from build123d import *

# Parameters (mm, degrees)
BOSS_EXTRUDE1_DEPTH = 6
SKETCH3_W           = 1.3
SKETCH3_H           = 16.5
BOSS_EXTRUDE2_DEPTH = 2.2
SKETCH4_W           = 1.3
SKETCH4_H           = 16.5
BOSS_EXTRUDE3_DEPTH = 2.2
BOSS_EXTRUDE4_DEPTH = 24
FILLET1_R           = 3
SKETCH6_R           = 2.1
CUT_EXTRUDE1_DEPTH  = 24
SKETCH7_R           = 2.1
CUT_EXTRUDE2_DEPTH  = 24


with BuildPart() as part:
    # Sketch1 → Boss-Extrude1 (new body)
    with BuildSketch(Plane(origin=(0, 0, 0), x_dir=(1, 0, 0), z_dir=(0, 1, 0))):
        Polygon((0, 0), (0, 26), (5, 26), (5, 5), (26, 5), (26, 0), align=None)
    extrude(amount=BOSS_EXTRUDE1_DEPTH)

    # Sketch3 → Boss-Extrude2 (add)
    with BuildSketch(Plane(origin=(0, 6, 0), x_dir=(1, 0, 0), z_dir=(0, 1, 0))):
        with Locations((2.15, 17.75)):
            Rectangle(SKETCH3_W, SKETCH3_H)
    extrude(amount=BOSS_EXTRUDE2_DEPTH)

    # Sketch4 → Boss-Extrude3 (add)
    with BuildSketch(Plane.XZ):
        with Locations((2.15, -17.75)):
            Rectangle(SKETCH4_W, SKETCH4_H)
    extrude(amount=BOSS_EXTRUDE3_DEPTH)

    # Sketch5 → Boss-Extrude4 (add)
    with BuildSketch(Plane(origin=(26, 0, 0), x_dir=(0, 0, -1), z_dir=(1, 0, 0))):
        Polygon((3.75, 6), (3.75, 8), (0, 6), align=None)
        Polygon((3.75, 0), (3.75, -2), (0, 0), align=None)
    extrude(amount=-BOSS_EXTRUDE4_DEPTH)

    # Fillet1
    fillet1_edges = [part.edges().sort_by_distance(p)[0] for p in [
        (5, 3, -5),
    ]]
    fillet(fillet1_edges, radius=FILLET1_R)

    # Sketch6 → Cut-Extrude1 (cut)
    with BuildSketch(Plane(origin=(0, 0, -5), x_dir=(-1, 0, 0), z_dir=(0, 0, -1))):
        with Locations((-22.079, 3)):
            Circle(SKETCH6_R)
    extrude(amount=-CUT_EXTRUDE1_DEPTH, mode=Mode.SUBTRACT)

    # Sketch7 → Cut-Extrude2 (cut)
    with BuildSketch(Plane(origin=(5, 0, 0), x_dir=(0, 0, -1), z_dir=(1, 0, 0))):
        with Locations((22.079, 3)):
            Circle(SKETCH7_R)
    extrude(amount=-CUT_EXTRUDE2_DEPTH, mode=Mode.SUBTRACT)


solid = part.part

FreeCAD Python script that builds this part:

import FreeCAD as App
import Part
import Sketcher

V = App.Vector
Q = App.Units.Quantity


def edges_at(feature, points):
    """Names of the edges that pass closest to the given points."""
    edges = feature.Shape.Edges
    near = lambda p: min(range(len(edges)), key=lambda i: edges[i].distToShape(Part.Vertex(*p))[0])
    return sorted({f"Edge{near(p) + 1}" for p in points})


def add_polygon(sketch, points):
    """Adds a closed chain of lines whose ends are joined by coincident constraints."""
    first, n = sketch.GeometryCount, len(points)
    for a, b in zip(points, points[1:] + points[:1]):
        sketch.addGeometry(Part.LineSegment(App.Vector(*a, 0), App.Vector(*b, 0)), False)
    for i in range(n):
        sketch.addConstraint(Sketcher.Constraint("Coincident", first + i, 2, first + (i + 1) % n, 1))

doc = App.newDocument("Part")
body = doc.addObject("PartDesign::Body", "Body")

# Sketch on XZ plane
sketch1 = body.newObject("Sketcher::SketchObject", "Sketch")
sketch1.AttachmentSupport = (doc.getObject("XZ_Plane"), [""])
sketch1.MapMode = "FlatFace"
add_polygon(sketch1, [(0, -26), (0, 0), (26, 0), (26, -5), (5, -5), (5, -26)])  # lines 0-5
sketch1.addConstraint(Sketcher.Constraint("Vertical", 0))
sketch1.addConstraint(Sketcher.Constraint("Horizontal", 1))
sketch1.addConstraint(Sketcher.Constraint("Vertical", 2))
sketch1.addConstraint(Sketcher.Constraint("Horizontal", 3))
sketch1.addConstraint(Sketcher.Constraint("Vertical", 4))
sketch1.addConstraint(Sketcher.Constraint("Horizontal", 5))
sketch1.addConstraint(Sketcher.Constraint("Coincident", 0, 2, -1, 1))
sketch1.addConstraint(Sketcher.Constraint("Equal", 1, 0))
sketch1.addConstraint(Sketcher.Constraint("Equal", 5, 2))
sketch1.addConstraint(Sketcher.Constraint("DistanceX", 1, 1, 1, 2, Q("26 mm")))
sketch1.addConstraint(Sketcher.Constraint("DistanceX", 3, 2, 3, 1, Q("21 mm")))
pad1 = body.newObject("PartDesign::Pad", "Pad")
pad1.Profile = sketch1
pad1.Length = 6
pad1.Reversed = True

# Sketch on XZ plane
sketch2 = body.newObject("Sketcher::SketchObject", "Sketch001")
sketch2.AttachmentSupport = (doc.getObject("XZ_Plane"), [""])
sketch2.MapMode = "FlatFace"
sketch2.AttachmentOffset = App.Placement(V(0, 0, -6), App.Rotation())
add_polygon(sketch2, [(1.5, -26), (1.5, -9.5), (2.8, -9.5), (2.8, -26)])  # lines 0-3
sketch2.addConstraint(Sketcher.Constraint("Vertical", 0))
sketch2.addConstraint(Sketcher.Constraint("Horizontal", 1))
sketch2.addConstraint(Sketcher.Constraint("Vertical", 2))
sketch2.addConstraint(Sketcher.Constraint("Horizontal", 3))
sketch2.addConstraint(Sketcher.Constraint("DistanceX", 1, 1, 1, 2, Q("1.3 mm")))
sketch2.addConstraint(Sketcher.Constraint("DistanceY", 0, 1, 0, 2, Q("16.5 mm")))
sketch2.addConstraint(Sketcher.Constraint("DistanceY", 2, 2, -1, 1, Q("26 mm")))
sketch2.addConstraint(Sketcher.Constraint("DistanceX", -1, 1, 0, 2, Q("1.5 mm")))
pad2 = body.newObject("PartDesign::Pad", "Pad001")
pad2.Profile = sketch2
pad2.Length = 2.2
pad2.Reversed = True

# Sketch on XZ plane
sketch3 = body.newObject("Sketcher::SketchObject", "Sketch002")
sketch3.AttachmentSupport = (doc.getObject("XZ_Plane"), [""])
sketch3.MapMode = "FlatFace"
add_polygon(sketch3, [(1.5, -9.5), (1.5, -26), (2.8, -26), (2.8, -9.5)])  # lines 0-3
sketch3.addConstraint(Sketcher.Constraint("Vertical", 0))
sketch3.addConstraint(Sketcher.Constraint("Horizontal", 1))
sketch3.addConstraint(Sketcher.Constraint("Vertical", 2))
sketch3.addConstraint(Sketcher.Constraint("Horizontal", 3))
sketch3.addConstraint(Sketcher.Constraint("DistanceX", 1, 1, 1, 2, Q("1.3 mm")))
sketch3.addConstraint(Sketcher.Constraint("DistanceY", 0, 2, 0, 1, Q("16.5 mm")))
sketch3.addConstraint(Sketcher.Constraint("DistanceY", 0, 2, -1, 1, Q("26 mm")))
sketch3.addConstraint(Sketcher.Constraint("DistanceX", -1, 1, 0, 2, Q("1.5 mm")))
pad3 = body.newObject("PartDesign::Pad", "Pad002")
pad3.Profile = sketch3
pad3.Length = 2.2

# Sketch on YZ plane
sketch4 = body.newObject("Sketcher::SketchObject", "Sketch003")
sketch4.AttachmentSupport = (doc.getObject("YZ_Plane"), [""])
sketch4.MapMode = "FlatFace"
sketch4.AttachmentOffset = App.Placement(V(0, 0, 26), App.Rotation())
add_polygon(sketch4, [(6, -3.75), (8, -3.75), (6, 0)])  # lines 0-2
add_polygon(sketch4, [(-2, -3.75), (0, -3.75), (0, 0)])  # lines 3-5
sketch4.addConstraint(Sketcher.Constraint("Horizontal", 0))
sketch4.addConstraint(Sketcher.Constraint("Vertical", 2))
sketch4.addConstraint(Sketcher.Constraint("Horizontal", 3))
sketch4.addConstraint(Sketcher.Constraint("Vertical", 4))
sketch4.addConstraint(Sketcher.Constraint("Coincident", 4, 2, -1, 1))
sketch4.addConstraint(Sketcher.Constraint("PointOnObject", 1, 2, -1))
sketch4.addConstraint(Sketcher.Constraint("Horizontal", 2, 2, 3, 2))
sketch4.addConstraint(Sketcher.Constraint("Equal", 0, 3))
sketch4.addConstraint(Sketcher.Constraint("DistanceX", 0, 1, 0, 2, Q("2 mm")))
sketch4.addConstraint(Sketcher.Constraint("DistanceX", -1, 1, 0, 2, Q("8 mm")))
sketch4.addConstraint(Sketcher.Constraint("DistanceY", 2, 2, 2, 1, Q("3.75 mm")))
pad4 = body.newObject("PartDesign::Pad", "Pad003")
pad4.Profile = sketch4
pad4.Length = 24
pad4.Reversed = True
doc.recompute()

fillet = body.newObject("PartDesign::Fillet", "Fillet")
fillet.Base = (pad4, edges_at(pad4, [(5, 3, -5)]))
fillet.Radius = 3

# Sketch on XY plane
sketch5 = body.newObject("Sketcher::SketchObject", "Sketch004")
sketch5.AttachmentSupport = (doc.getObject("XY_Plane"), [""])
sketch5.MapMode = "FlatFace"
sketch5.AttachmentOffset = App.Placement(V(0, 0, -5), App.Rotation())
sketch5.addGeometry(Part.Circle(V(22.079, 3, 0), V(0, 0, 1), 2.1), False)
sketch5.addConstraint(Sketcher.Constraint("Diameter", 0, Q("4.2 mm")))
sketch5.addConstraint(Sketcher.Constraint("DistanceY", -1, 1, 0, 3, Q("3 mm")))
sketch5.addConstraint(Sketcher.Constraint("DistanceX", -1, 1, 0, 3, Q("22.079 mm")))
pocket1 = body.newObject("PartDesign::Pocket", "Pocket")
pocket1.Profile = sketch5
pocket1.Length = 24
pocket1.Reversed = True

# Sketch on YZ plane
sketch6 = body.newObject("Sketcher::SketchObject", "Sketch005")
sketch6.AttachmentSupport = (doc.getObject("YZ_Plane"), [""])
sketch6.MapMode = "FlatFace"
sketch6.AttachmentOffset = App.Placement(V(0, 0, 5), App.Rotation())
sketch6.addGeometry(Part.Circle(V(3, -22.079, 0), V(0, 0, 1), 2.1), False)
sketch6.addConstraint(Sketcher.Constraint("Diameter", 0, Q("4.2 mm")))
sketch6.addConstraint(Sketcher.Constraint("DistanceX", -1, 1, 0, 3, Q("3 mm")))
sketch6.addConstraint(Sketcher.Constraint("DistanceY", 0, 3, -1, 1, Q("22.079 mm")))
pocket2 = body.newObject("PartDesign::Pocket", "Pocket001")
pocket2.Profile = sketch6
pocket2.Length = 24

doc.recompute()
